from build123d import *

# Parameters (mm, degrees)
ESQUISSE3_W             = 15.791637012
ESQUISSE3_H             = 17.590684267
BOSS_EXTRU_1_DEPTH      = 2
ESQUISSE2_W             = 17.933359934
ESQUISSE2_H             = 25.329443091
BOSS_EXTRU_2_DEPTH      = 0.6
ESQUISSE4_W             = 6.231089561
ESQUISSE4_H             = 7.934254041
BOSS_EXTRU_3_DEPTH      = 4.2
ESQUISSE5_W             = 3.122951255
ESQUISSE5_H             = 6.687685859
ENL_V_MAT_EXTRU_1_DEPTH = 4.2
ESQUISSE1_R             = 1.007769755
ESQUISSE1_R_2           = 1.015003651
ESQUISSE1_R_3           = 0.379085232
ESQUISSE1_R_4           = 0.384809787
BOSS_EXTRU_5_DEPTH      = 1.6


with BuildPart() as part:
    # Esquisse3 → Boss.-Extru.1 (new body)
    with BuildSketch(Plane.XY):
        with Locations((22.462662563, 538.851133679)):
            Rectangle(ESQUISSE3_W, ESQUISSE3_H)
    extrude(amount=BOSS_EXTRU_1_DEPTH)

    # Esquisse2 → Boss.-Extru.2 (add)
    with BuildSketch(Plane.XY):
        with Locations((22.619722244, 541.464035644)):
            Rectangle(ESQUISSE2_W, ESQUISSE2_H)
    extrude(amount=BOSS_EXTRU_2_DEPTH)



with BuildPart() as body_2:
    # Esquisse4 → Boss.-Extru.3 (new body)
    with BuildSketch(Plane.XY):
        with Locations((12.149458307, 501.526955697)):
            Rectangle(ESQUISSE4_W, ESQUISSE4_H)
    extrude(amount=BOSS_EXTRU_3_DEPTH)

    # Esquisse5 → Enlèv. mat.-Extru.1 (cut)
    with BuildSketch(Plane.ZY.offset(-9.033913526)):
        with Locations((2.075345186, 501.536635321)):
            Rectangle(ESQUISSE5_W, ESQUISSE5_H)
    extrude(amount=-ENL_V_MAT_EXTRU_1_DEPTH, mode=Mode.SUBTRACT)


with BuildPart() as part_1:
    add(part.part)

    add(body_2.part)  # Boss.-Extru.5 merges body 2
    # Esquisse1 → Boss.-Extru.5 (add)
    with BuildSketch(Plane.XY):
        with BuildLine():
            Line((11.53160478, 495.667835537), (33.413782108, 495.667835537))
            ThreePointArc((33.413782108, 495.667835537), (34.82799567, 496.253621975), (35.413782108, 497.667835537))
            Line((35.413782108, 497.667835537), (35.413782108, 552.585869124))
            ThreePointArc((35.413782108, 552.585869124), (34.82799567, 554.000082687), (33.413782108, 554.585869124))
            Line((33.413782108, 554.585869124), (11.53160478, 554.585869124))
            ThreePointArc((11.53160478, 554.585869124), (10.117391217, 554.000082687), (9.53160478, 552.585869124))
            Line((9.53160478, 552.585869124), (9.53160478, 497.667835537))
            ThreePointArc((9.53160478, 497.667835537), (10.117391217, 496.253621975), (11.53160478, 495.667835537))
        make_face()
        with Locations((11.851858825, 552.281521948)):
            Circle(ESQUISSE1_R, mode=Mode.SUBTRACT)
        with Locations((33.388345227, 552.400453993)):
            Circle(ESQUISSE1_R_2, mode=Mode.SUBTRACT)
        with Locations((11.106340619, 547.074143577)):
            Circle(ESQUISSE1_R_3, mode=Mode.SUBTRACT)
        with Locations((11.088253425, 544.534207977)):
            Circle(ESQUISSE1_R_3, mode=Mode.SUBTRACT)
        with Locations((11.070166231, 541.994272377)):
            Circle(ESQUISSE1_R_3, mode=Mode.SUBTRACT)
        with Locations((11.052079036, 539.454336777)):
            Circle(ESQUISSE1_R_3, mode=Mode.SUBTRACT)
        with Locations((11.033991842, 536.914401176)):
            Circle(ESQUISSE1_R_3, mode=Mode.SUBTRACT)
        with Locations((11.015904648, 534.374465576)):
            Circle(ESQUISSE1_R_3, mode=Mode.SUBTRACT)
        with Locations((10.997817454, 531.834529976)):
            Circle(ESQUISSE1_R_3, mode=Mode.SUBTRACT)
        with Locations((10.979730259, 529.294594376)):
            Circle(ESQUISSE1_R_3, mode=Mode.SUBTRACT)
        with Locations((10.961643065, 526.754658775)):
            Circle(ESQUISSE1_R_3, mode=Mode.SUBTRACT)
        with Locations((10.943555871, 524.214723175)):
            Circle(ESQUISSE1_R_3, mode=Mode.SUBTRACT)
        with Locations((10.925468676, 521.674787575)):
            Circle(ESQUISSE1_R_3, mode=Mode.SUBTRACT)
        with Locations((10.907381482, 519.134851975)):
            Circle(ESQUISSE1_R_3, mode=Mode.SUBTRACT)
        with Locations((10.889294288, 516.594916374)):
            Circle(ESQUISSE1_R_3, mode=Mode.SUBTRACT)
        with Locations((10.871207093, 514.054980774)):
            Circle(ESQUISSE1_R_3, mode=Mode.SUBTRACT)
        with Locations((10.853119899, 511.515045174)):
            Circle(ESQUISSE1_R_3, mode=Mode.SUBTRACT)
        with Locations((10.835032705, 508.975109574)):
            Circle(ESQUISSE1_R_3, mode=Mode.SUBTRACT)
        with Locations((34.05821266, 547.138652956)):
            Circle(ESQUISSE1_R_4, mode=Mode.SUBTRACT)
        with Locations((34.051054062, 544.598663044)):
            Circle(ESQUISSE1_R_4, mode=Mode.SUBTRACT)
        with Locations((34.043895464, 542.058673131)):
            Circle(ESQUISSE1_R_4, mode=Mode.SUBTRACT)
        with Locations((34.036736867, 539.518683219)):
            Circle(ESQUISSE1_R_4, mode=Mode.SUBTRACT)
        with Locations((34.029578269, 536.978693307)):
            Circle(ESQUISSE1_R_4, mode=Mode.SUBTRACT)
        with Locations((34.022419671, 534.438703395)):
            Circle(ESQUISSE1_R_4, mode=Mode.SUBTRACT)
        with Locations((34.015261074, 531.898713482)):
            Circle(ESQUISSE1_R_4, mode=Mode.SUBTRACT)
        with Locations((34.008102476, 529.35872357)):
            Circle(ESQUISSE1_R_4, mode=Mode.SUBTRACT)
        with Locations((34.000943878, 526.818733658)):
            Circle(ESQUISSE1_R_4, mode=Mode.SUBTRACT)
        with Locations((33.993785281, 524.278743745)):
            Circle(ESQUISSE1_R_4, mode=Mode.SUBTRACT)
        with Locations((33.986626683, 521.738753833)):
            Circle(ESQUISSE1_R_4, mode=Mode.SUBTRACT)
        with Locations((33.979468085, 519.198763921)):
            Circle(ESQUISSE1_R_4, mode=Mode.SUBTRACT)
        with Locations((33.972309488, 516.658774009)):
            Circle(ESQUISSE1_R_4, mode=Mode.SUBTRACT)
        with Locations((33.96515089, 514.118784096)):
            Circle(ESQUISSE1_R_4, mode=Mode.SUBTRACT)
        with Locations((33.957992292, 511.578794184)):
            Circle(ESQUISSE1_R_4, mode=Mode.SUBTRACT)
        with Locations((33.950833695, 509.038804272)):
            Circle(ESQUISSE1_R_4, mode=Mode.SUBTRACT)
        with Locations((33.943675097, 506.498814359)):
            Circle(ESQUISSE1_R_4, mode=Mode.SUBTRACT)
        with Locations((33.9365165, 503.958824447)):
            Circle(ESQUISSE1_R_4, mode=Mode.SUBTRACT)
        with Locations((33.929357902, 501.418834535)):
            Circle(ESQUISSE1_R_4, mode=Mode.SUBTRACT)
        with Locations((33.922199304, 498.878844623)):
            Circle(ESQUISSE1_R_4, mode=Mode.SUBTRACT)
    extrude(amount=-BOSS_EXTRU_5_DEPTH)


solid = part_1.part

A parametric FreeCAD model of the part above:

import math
import FreeCAD as App
import Part
import Sketcher

V = App.Vector
Q = App.Units.Quantity


def add_polygon(sketch, points):
    """Adds a closed chain of lines whose ends are joined by coincident constraints."""
    first, n = sketch.GeometryCount, len(points)
    for a, b in zip(points, points[1:] + points[:1]):
        sketch.addGeometry(Part.LineSegment(App.Vector(*a, 0), App.Vector(*b, 0)), False)
    for i in range(n):
        sketch.addConstraint(Sketcher.Constraint("Coincident", first + i, 2, first + (i + 1) % n, 1))

doc = App.newDocument("Part")
body = doc.addObject("PartDesign::Body", "Body")

sketch1 = doc.addObject("Sketcher::SketchObject", "Sketch")
body.addObject(sketch1)
sketch1.AttachmentSupport = (doc.XY_Plane, [""])
sketch1.MapMode = "FlatFace"
add_polygon(sketch1, [(15, 548), (15, 530), (30, 530), (30, 548)])
sketch1.addConstraint([
    Sketcher.Constraint("Vertical", 0),
    Sketcher.Constraint("Horizontal", 1),
    Sketcher.Constraint("Vertical", 2),
    Sketcher.Constraint("Horizontal", 3),
    Sketcher.Constraint("DistanceX", 1, 1, 1, 2, Q("15.791637 mm")),
    Sketcher.Constraint("DistanceY", 0, 2, 0, 1, Q("17.590684 mm")),
    Sketcher.Constraint("DistanceY", -1, 1, 0, 2, Q("530.055792 mm")),
    Sketcher.Constraint("DistanceX", -1, 1, 1, 2, Q("30.358481 mm")),
])
pad1 = doc.addObject("PartDesign::Pad", "Pad")
body.addObject(pad1)
pad1.Profile = sketch1
pad1.Length = 2

sketch2 = doc.addObject("Sketcher::SketchObject", "Sketch001")
body.addObject(sketch2)
sketch2.AttachmentSupport = (doc.XY_Plane, [""])
sketch2.MapMode = "FlatFace"
add_polygon(sketch2, [(14, 554), (14, 529), (32, 529), (32, 554)])
sketch2.addConstraint([
    Sketcher.Constraint("Vertical", 0),
    Sketcher.Constraint("Horizontal", 1),
    Sketcher.Constraint("Vertical", 2),
    Sketcher.Constraint("Horizontal", 3),
    Sketcher.Constraint("DistanceX", 1, 1, 1, 2, Q("17.93336 mm")),
    Sketcher.Constraint("DistanceY", 0, 2, 0, 1, Q("25.329443 mm")),
    Sketcher.Constraint("DistanceX", -1, 1, 0, 2, Q("13.653042 mm")),
    Sketcher.Constraint("DistanceY", -1, 1, 0, 2, Q("528.799314 mm")),
])
pad2 = doc.addObject("PartDesign::Pad", "Pad001")
body.addObject(pad2)
pad2.Profile = sketch2
pad2.Length = 0.6
body2 = doc.addObject("PartDesign::Body", "Body001")

sketch3 = doc.addObject("Sketcher::SketchObject", "Sketch002")
body2.addObject(sketch3)
sketch3.AttachmentSupport = (doc.getObject("XY_Plane001"), [""])
sketch3.MapMode = "FlatFace"
add_polygon(sketch3, [(9, 505), (9, 498), (15, 498), (15, 505)])
sketch3.addConstraint([
    Sketcher.Constraint("Vertical", 0),
    Sketcher.Constraint("Horizontal", 1),
    Sketcher.Constraint("Vertical", 2),
    Sketcher.Constraint("Horizontal", 3),
    Sketcher.Constraint("DistanceX", 1, 1, 1, 2, Q("6.23109 mm")),
    Sketcher.Constraint("DistanceY", 0, 2, 0, 1, Q("7.934254 mm")),
    Sketcher.Constraint("DistanceY", -1, 1, 0, 2, Q("497.559829 mm")),
    Sketcher.Constraint("DistanceX", -1, 1, 0, 2, Q("9.033914 mm")),
])
pad3 = doc.addObject("PartDesign::Pad", "Pad002")
body2.addObject(pad3)
pad3.Profile = sketch3
pad3.Length = 4.2

sketch4 = doc.addObject("Sketcher::SketchObject", "Sketch003")
body2.addObject(sketch4)
sketch4.AttachmentSupport = (doc.getObject("YZ_Plane001"), [""])
sketch4.MapMode = "FlatFace"
sketch4.AttachmentOffset = App.Placement(V(0, 0, 9.033914), App.Rotation())
add_polygon(sketch4, [(504.9, 0.5), (498.2, 0.5), (498.2, 3.6), (504.9, 3.6)])
sketch4.addConstraint([
    Sketcher.Constraint("Horizontal", 0),
    Sketcher.Constraint("Vertical", 1),
    Sketcher.Constraint("Horizontal", 2),
    Sketcher.Constraint("Vertical", 3),
    Sketcher.Constraint("DistanceY", 1, 1, 1, 2, Q("3.122951 mm")),
    Sketcher.Constraint("DistanceX", 0, 2, 0, 1, Q("6.687686 mm")),
    Sketcher.Constraint("DistanceY", -1, 1, 0, 2, Q("0.51387 mm")),
    Sketcher.Constraint("DistanceX", -1, 1, 2, 2, Q("504.880478 mm")),
])
pocket1 = doc.addObject("PartDesign::Pocket", "Pocket")
body2.addObject(pocket1)
pocket1.Profile = sketch4
pocket1.Length = 4.2
pocket1.Reversed = True
body.AllowCompound = True
doc.recompute()

boolean = doc.addObject("PartDesign::Boolean", "Boolean")
body.addObject(boolean)
boolean.Type = "Fuse"
boolean.addObjects([body2])

sketch5 = doc.addObject("Sketcher::SketchObject", "Sketch004")
body.addObject(sketch5)
sketch5.AttachmentSupport = (doc.XY_Plane, [""])
sketch5.MapMode = "FlatFace"
sketch5.addGeometry([
    Part.LineSegment(V(11.53, 495.67, 0), V(33.41, 495.67, 0)),
    Part.ArcOfCircle(Part.Circle(V(33.41, 497.67, 0), V(0, 0, 1), 2), math.radians(-90), math.radians(0)),
    Part.LineSegment(V(35.41, 497.67, 0), V(35.41, 552.59, 0)),
    Part.ArcOfCircle(Part.Circle(V(33.41, 552.59, 0), V(0, 0, 1), 2), math.radians(0), math.radians(90)),
    Part.LineSegment(V(33.41, 554.59, 0), V(11.53, 554.59, 0)),
    Part.ArcOfCircle(Part.Circle(V(11.53, 552.59, 0), V(0, 0, 1), 2), math.radians(90), math.radians(180)),
    Part.LineSegment(V(9.53, 552.59, 0), V(9.53, 497.67, 0)),
    Part.ArcOfCircle(Part.Circle(V(11.53, 497.67, 0), V(0, 0, 1), 2), math.radians(180), math.radians(270)),
    Part.Circle(V(10.84, 508.98, 0), V(0, 0, 1), 0.38),
    Part.Circle(V(10.85, 511.52, 0), V(0, 0, 1), 0.38),
    Part.Circle(V(10.87, 514.05, 0), V(0, 0, 1), 0.38),
    Part.Circle(V(10.89, 516.59, 0), V(0, 0, 1), 0.38),
    Part.Circle(V(10.91, 519.13, 0), V(0, 0, 1), 0.38),
    Part.Circle(V(10.93, 521.67, 0), V(0, 0, 1), 0.38),
    Part.Circle(V(10.94, 524.21, 0), V(0, 0, 1), 0.38),
    Part.Circle(V(33.92, 498.88, 0), V(0, 0, 1), 0.38),
    Part.Circle(V(33.93, 501.42, 0), V(0, 0, 1), 0.38),
    Part.Circle(V(33.94, 503.96, 0), V(0, 0, 1), 0.38),
    Part.Circle(V(33.94, 506.5, 0), V(0, 0, 1), 0.38),
    Part.Circle(V(33.95, 509.04, 0), V(0, 0, 1), 0.38),
    Part.Circle(V(33.96, 511.58, 0), V(0, 0, 1), 0.38),
    Part.Circle(V(33.97, 514.12, 0), V(0, 0, 1), 0.38),
    Part.Circle(V(33.97, 516.66, 0), V(0, 0, 1), 0.38),
    Part.Circle(V(33.98, 519.2, 0), V(0, 0, 1), 0.38),
    Part.Circle(V(33.99, 521.74, 0), V(0, 0, 1), 0.38),
    Part.Circle(V(33.99, 524.28, 0), V(0, 0, 1), 0.38),
    Part.Circle(V(10.96, 526.75, 0), V(0, 0, 1), 0.38),
    Part.Circle(V(10.98, 529.29, 0), V(0, 0, 1), 0.38),
    Part.Circle(V(11, 531.83, 0), V(0, 0, 1), 0.38),
    Part.Circle(V(11.02, 534.37, 0), V(0, 0, 1), 0.38),
    Part.Circle(V(11.03, 536.91, 0), V(0, 0, 1), 0.38),
    Part.Circle(V(11.05, 539.45, 0), V(0, 0, 1), 0.38),
    Part.Circle(V(11.07, 541.99, 0), V(0, 0, 1), 0.38),
    Part.Circle(V(11.09, 544.53, 0), V(0, 0, 1), 0.38),
    Part.Circle(V(11.11, 547.07, 0), V(0, 0, 1), 0.38),
    Part.Circle(V(11.85, 552.28, 0), V(0, 0, 1), 1.01),
    Part.Circle(V(34, 526.82, 0), V(0, 0, 1), 0.38),
    Part.Circle(V(34.01, 529.36, 0), V(0, 0, 1), 0.38),
    Part.Circle(V(34.02, 531.9, 0), V(0, 0, 1), 0.38),
    Part.Circle(V(34.02, 534.44, 0), V(0, 0, 1), 0.38),
    Part.Circle(V(34.03, 536.98, 0), V(0, 0, 1), 0.38),
    Part.Circle(V(34.04, 539.52, 0), V(0, 0, 1), 0.38),
    Part.Circle(V(34.04, 542.06, 0), V(0, 0, 1), 0.38),
    Part.Circle(V(34.05, 544.6, 0), V(0, 0, 1), 0.38),
    Part.Circle(V(34.06, 547.14, 0), V(0, 0, 1), 0.38),
    Part.Circle(V(33.39, 552.4, 0), V(0, 0, 1), 1.02),
], False)
sketch5.addConstraint([
    Sketcher.Constraint("Tangent", 0, 2, 1, 1),
    Sketcher.Constraint("Tangent", 1, 2, 2, 1),
    Sketcher.Constraint("Tangent", 2, 2, 3, 1),
    Sketcher.Constraint("Tangent", 3, 2, 4, 1),
    Sketcher.Constraint("Tangent", 4, 2, 5, 1),
    Sketcher.Constraint("Tangent", 5, 2, 6, 1),
    Sketcher.Constraint("Tangent", 6, 2, 7, 1),
    Sketcher.Constraint("Tangent", 7, 2, 0, 1),
    Sketcher.Constraint("Horizontal", 0),
    Sketcher.Constraint("Vertical", 2),
    Sketcher.Constraint("Horizontal", 4),
    Sketcher.Constraint("Vertical", 6),
    Sketcher.Constraint("Equal", 1, 3),
    Sketcher.Constraint("Equal", 3, 5),
    Sketcher.Constraint("Equal", 5, 7),
    Sketcher.Constraint("Equal", 8, 9),
    Sketcher.Constraint("Equal", 9, 10),
    Sketcher.Constraint("Equal", 10, 11),
    Sketcher.Constraint("Equal", 11, 12),
    Sketcher.Constraint("Equal", 12, 13),
    Sketcher.Constraint("Equal", 13, 14),
    Sketcher.Constraint("Equal", 15, 16),
    Sketcher.Constraint("Equal", 16, 17),
    Sketcher.Constraint("Equal", 17, 18),
    Sketcher.Constraint("Equal", 18, 19),
    Sketcher.Constraint("Equal", 19, 20),
    Sketcher.Constraint("Equal", 20, 21),
    Sketcher.Constraint("Equal", 21, 22),
    Sketcher.Constraint("Equal", 22, 23),
    Sketcher.Constraint("Equal", 23, 24),
    Sketcher.Constraint("Equal", 24, 25),
    Sketcher.Constraint("Equal", 14, 26),
    Sketcher.Constraint("Equal", 26, 27),
    Sketcher.Constraint("Equal", 27, 28),
    Sketcher.Constraint("Equal", 28, 29),
    Sketcher.Constraint("Equal", 29, 30),
    Sketcher.Constraint("Equal", 30, 31),
    Sketcher.Constraint("Equal", 31, 32),
    Sketcher.Constraint("Equal", 32, 33),
    Sketcher.Constraint("Equal", 33, 34),
    Sketcher.Constraint("Equal", 25, 36),
    Sketcher.Constraint("Equal", 36, 37),
    Sketcher.Constraint("Equal", 37, 38),
    Sketcher.Constraint("Equal", 38, 39),
    Sketcher.Constraint("Equal", 39, 40),
    Sketcher.Constraint("Equal", 40, 41),
    Sketcher.Constraint("Equal", 41, 42),
    Sketcher.Constraint("Equal", 42, 43),
    Sketcher.Constraint("Equal", 43, 44),
    Sketcher.Constraint("Radius", 1, Q("2 mm")),
    Sketcher.Constraint("Diameter", 8, Q("0.75817 mm")),
    Sketcher.Constraint("Diameter", 15, Q("0.76962 mm")),
    Sketcher.Constraint("Diameter", 35, Q("2.01554 mm")),
    Sketcher.Constraint("Diameter", 45, Q("2.030007 mm")),
    Sketcher.Constraint("DistanceY", 1, 3, 16, 3, Q("3.750999 mm")),
    Sketcher.Constraint("DistanceX", -1, 1, 15, 3, Q("33.922199 mm")),
    Sketcher.Constraint("DistanceY", -1, 1, 30, 3, Q("536.914401 mm")),
    Sketcher.Constraint("DistanceY", 15, 3, 9, 3, Q("12.636201 mm")),
    Sketcher.Constraint("DistanceY", 44, 3, 45, 3, Q("5.261801 mm")),
    Sketcher.Constraint("DistanceX", 0, 1, 0, 2, Q("21.882177 mm")),
    Sketcher.Constraint("DistanceY", 2, 1, 2, 2, Q("54.918034 mm")),
    Sketcher.Constraint("DistanceY", -1, 1, 3, 3, Q("552.585869 mm")),
    Sketcher.Constraint("DistanceY", -1, 1, 8, 3, Q("508.97511 mm")),
    Sketcher.Constraint("DistanceX", -1, 1, 9, 3, Q("10.85312 mm")),
    Sketcher.Constraint("DistanceY", -1, 1, 10, 3, Q("514.054981 mm")),
    Sketcher.Constraint("DistanceX", -1, 1, 12, 3, Q("10.907381 mm")),
    Sketcher.Constraint("DistanceY", -1, 1, 12, 3, Q("519.134852 mm")),
    Sketcher.Constraint("DistanceX", -1, 1, 13, 3, Q("10.925469 mm")),
    Sketcher.Constraint("DistanceX", -1, 1, 21, 3, Q("33.965151 mm")),
    Sketcher.Constraint("DistanceX", -1, 1, 22, 3, Q("33.972309 mm")),
    Sketcher.Constraint("DistanceX", -1, 1, 23, 3, Q("33.979468 mm")),
    Sketcher.Constraint("DistanceY", -1, 1, 26, 3, Q("526.754659 mm")),
    Sketcher.Constraint("DistanceX", -1, 1, 27, 3, Q("10.97973 mm")),
    Sketcher.Constraint("DistanceY", -1, 1, 28, 3, Q("531.83453 mm")),
    Sketcher.Constraint("DistanceX", -1, 1, 30, 3, Q("11.033992 mm")),
    Sketcher.Constraint("DistanceX", -1, 1, 31, 3, Q("11.052079 mm")),
    Sketcher.Constraint("DistanceX", -1, 1, 34, 3, Q("11.106341 mm")),
    Sketcher.Constraint("DistanceX", -1, 1, 35, 3, Q("11.851859 mm")),
    Sketcher.Constraint("DistanceY", -1, 1, 35, 3, Q("552.281522 mm")),
    Sketcher.Constraint("DistanceX", -1, 1, 38, 3, Q("34.015261 mm")),
    Sketcher.Constraint("DistanceX", -1, 1, 39, 3, Q("34.02242 mm")),
    Sketcher.Constraint("DistanceX", -1, 1, 40, 3, Q("34.029578 mm")),
    Sketcher.Constraint("DistanceX", 8, 3, 1, 3, Q("22.578749 mm")),
    Sketcher.Constraint("DistanceY", 7, 3, 9, 3, Q("13.84721 mm")),
    Sketcher.Constraint("DistanceY", 9, 3, 11, 3, Q("5.079871 mm")),
    Sketcher.Constraint("DistanceX", 8, 3, 11, 3, Q("0.054262 mm")),
    Sketcher.Constraint("DistanceX", 8, 3, 12, 3, Q("0.072349 mm")),
    Sketcher.Constraint("DistanceY", 11, 3, 13, 3, Q("5.079871 mm")),
    Sketcher.Constraint("DistanceX", 10, 3, 13, 3, Q("0.054262 mm")),
    Sketcher.Constraint("DistanceY", 12, 3, 14, 3, Q("5.079871 mm")),
    Sketcher.Constraint("DistanceX", 11, 3, 14, 3, Q("0.054262 mm")),
    Sketcher.Constraint("DistanceX", 15, 3, 16, 3, Q("0.007159 mm")),
    Sketcher.Constraint("DistanceX", 16, 3, 17, 3, Q("0.007159 mm")),
    Sketcher.Constraint("DistanceY", 16, 3, 17, 3, Q("2.53999 mm")),
    Sketcher.Constraint("DistanceX", 17, 3, 18, 3, Q("0.007159 mm")),
    Sketcher.Constraint("DistanceY", 17, 3, 18, 3, Q("2.53999 mm")),
    Sketcher.Constraint("DistanceX", 18, 3, 19, 3, Q("0.007159 mm")),
    Sketcher.Constraint("DistanceY", 18, 3, 19, 3, Q("2.53999 mm")),
    Sketcher.Constraint("DistanceX", 19, 3, 20, 3, Q("0.007159 mm")),
    Sketcher.Constraint("DistanceY", 19, 3, 20, 3, Q("2.53999 mm")),
    Sketcher.Constraint("DistanceY", 20, 3, 21, 3, Q("2.53999 mm")),
    Sketcher.Constraint("DistanceY", 21, 3, 22, 3, Q("2.53999 mm")),
    Sketcher.Constraint("DistanceY", 22, 3, 23, 3, Q("2.53999 mm")),
    Sketcher.Constraint("DistanceX", 23, 3, 24, 3, Q("0.007159 mm")),
    Sketcher.Constraint("DistanceY", 23, 3, 24, 3, Q("2.53999 mm")),
    Sketcher.Constraint("DistanceX", 24, 3, 25, 3, Q("0.007159 mm")),
    Sketcher.Constraint("DistanceY", 24, 3, 25, 3, Q("2.53999 mm")),
    Sketcher.Constraint("DistanceX", 12, 3, 26, 3, Q("0.054262 mm")),
    Sketcher.Constraint("DistanceY", 14, 3, 27, 3, Q("5.079871 mm")),
    Sketcher.Constraint("DistanceX", 14, 3, 28, 3, Q("0.054262 mm")),
    Sketcher.Constraint("DistanceY", 27, 3, 29, 3, Q("5.079871 mm")),
    Sketcher.Constraint("DistanceX", 26, 3, 29, 3, Q("0.054262 mm")),
    Sketcher.Constraint("DistanceY", 29, 3, 31, 3, Q("5.079871 mm")),
    Sketcher.Constraint("DistanceY", 30, 3, 32, 3, Q("5.079871 mm")),
    Sketcher.Constraint("DistanceX", 29, 3, 32, 3, Q("0.054262 mm")),
    Sketcher.Constraint("DistanceY", 31, 3, 33, 3, Q("5.079871 mm")),
    Sketcher.Constraint("DistanceX", 30, 3, 33, 3, Q("0.054262 mm")),
    Sketcher.Constraint("DistanceY", 32, 3, 34, 3, Q("5.079871 mm")),
    Sketcher.Constraint("DistanceX", 25, 3, 36, 3, Q("0.007159 mm")),
    Sketcher.Constraint("DistanceY", 25, 3, 36, 3, Q("2.53999 mm")),
    Sketcher.Constraint("DistanceX", 36, 3, 37, 3, Q("0.007159 mm")),
    Sketcher.Constraint("DistanceY", 36, 3, 37, 3, Q("2.53999 mm")),
    Sketcher.Constraint("DistanceY", 37, 3, 38, 3, Q("2.53999 mm")),
    Sketcher.Constraint("DistanceY", 38, 3, 39, 3, Q("2.53999 mm")),
    Sketcher.Constraint("DistanceY", 39, 3, 40, 3, Q("2.53999 mm")),
    Sketcher.Constraint("DistanceX", 40, 3, 41, 3, Q("0.007159 mm")),
    Sketcher.Constraint("DistanceY", 40, 3, 41, 3, Q("2.53999 mm")),
    Sketcher.Constraint("DistanceX", 41, 3, 42, 3, Q("0.007159 mm")),
    Sketcher.Constraint("DistanceY", 41, 3, 42, 3, Q("2.53999 mm")),
    Sketcher.Constraint("DistanceX", 42, 3, 43, 3, Q("0.007159 mm")),
    Sketcher.Constraint("DistanceY", 42, 3, 43, 3, Q("2.53999 mm")),
    Sketcher.Constraint("DistanceX", 43, 3, 44, 3, Q("0.007159 mm")),
    Sketcher.Constraint("DistanceY", 43, 3, 44, 3, Q("2.53999 mm")),
    Sketcher.Constraint("DistanceX", 45, 3, 43, 3, Q("0.662709 mm")),
])
pad4 = doc.addObject("PartDesign::Pad", "Pad003")
body.addObject(pad4)
pad4.Profile = sketch5
pad4.Length = 1.6
pad4.Reversed = True

doc.recompute()
